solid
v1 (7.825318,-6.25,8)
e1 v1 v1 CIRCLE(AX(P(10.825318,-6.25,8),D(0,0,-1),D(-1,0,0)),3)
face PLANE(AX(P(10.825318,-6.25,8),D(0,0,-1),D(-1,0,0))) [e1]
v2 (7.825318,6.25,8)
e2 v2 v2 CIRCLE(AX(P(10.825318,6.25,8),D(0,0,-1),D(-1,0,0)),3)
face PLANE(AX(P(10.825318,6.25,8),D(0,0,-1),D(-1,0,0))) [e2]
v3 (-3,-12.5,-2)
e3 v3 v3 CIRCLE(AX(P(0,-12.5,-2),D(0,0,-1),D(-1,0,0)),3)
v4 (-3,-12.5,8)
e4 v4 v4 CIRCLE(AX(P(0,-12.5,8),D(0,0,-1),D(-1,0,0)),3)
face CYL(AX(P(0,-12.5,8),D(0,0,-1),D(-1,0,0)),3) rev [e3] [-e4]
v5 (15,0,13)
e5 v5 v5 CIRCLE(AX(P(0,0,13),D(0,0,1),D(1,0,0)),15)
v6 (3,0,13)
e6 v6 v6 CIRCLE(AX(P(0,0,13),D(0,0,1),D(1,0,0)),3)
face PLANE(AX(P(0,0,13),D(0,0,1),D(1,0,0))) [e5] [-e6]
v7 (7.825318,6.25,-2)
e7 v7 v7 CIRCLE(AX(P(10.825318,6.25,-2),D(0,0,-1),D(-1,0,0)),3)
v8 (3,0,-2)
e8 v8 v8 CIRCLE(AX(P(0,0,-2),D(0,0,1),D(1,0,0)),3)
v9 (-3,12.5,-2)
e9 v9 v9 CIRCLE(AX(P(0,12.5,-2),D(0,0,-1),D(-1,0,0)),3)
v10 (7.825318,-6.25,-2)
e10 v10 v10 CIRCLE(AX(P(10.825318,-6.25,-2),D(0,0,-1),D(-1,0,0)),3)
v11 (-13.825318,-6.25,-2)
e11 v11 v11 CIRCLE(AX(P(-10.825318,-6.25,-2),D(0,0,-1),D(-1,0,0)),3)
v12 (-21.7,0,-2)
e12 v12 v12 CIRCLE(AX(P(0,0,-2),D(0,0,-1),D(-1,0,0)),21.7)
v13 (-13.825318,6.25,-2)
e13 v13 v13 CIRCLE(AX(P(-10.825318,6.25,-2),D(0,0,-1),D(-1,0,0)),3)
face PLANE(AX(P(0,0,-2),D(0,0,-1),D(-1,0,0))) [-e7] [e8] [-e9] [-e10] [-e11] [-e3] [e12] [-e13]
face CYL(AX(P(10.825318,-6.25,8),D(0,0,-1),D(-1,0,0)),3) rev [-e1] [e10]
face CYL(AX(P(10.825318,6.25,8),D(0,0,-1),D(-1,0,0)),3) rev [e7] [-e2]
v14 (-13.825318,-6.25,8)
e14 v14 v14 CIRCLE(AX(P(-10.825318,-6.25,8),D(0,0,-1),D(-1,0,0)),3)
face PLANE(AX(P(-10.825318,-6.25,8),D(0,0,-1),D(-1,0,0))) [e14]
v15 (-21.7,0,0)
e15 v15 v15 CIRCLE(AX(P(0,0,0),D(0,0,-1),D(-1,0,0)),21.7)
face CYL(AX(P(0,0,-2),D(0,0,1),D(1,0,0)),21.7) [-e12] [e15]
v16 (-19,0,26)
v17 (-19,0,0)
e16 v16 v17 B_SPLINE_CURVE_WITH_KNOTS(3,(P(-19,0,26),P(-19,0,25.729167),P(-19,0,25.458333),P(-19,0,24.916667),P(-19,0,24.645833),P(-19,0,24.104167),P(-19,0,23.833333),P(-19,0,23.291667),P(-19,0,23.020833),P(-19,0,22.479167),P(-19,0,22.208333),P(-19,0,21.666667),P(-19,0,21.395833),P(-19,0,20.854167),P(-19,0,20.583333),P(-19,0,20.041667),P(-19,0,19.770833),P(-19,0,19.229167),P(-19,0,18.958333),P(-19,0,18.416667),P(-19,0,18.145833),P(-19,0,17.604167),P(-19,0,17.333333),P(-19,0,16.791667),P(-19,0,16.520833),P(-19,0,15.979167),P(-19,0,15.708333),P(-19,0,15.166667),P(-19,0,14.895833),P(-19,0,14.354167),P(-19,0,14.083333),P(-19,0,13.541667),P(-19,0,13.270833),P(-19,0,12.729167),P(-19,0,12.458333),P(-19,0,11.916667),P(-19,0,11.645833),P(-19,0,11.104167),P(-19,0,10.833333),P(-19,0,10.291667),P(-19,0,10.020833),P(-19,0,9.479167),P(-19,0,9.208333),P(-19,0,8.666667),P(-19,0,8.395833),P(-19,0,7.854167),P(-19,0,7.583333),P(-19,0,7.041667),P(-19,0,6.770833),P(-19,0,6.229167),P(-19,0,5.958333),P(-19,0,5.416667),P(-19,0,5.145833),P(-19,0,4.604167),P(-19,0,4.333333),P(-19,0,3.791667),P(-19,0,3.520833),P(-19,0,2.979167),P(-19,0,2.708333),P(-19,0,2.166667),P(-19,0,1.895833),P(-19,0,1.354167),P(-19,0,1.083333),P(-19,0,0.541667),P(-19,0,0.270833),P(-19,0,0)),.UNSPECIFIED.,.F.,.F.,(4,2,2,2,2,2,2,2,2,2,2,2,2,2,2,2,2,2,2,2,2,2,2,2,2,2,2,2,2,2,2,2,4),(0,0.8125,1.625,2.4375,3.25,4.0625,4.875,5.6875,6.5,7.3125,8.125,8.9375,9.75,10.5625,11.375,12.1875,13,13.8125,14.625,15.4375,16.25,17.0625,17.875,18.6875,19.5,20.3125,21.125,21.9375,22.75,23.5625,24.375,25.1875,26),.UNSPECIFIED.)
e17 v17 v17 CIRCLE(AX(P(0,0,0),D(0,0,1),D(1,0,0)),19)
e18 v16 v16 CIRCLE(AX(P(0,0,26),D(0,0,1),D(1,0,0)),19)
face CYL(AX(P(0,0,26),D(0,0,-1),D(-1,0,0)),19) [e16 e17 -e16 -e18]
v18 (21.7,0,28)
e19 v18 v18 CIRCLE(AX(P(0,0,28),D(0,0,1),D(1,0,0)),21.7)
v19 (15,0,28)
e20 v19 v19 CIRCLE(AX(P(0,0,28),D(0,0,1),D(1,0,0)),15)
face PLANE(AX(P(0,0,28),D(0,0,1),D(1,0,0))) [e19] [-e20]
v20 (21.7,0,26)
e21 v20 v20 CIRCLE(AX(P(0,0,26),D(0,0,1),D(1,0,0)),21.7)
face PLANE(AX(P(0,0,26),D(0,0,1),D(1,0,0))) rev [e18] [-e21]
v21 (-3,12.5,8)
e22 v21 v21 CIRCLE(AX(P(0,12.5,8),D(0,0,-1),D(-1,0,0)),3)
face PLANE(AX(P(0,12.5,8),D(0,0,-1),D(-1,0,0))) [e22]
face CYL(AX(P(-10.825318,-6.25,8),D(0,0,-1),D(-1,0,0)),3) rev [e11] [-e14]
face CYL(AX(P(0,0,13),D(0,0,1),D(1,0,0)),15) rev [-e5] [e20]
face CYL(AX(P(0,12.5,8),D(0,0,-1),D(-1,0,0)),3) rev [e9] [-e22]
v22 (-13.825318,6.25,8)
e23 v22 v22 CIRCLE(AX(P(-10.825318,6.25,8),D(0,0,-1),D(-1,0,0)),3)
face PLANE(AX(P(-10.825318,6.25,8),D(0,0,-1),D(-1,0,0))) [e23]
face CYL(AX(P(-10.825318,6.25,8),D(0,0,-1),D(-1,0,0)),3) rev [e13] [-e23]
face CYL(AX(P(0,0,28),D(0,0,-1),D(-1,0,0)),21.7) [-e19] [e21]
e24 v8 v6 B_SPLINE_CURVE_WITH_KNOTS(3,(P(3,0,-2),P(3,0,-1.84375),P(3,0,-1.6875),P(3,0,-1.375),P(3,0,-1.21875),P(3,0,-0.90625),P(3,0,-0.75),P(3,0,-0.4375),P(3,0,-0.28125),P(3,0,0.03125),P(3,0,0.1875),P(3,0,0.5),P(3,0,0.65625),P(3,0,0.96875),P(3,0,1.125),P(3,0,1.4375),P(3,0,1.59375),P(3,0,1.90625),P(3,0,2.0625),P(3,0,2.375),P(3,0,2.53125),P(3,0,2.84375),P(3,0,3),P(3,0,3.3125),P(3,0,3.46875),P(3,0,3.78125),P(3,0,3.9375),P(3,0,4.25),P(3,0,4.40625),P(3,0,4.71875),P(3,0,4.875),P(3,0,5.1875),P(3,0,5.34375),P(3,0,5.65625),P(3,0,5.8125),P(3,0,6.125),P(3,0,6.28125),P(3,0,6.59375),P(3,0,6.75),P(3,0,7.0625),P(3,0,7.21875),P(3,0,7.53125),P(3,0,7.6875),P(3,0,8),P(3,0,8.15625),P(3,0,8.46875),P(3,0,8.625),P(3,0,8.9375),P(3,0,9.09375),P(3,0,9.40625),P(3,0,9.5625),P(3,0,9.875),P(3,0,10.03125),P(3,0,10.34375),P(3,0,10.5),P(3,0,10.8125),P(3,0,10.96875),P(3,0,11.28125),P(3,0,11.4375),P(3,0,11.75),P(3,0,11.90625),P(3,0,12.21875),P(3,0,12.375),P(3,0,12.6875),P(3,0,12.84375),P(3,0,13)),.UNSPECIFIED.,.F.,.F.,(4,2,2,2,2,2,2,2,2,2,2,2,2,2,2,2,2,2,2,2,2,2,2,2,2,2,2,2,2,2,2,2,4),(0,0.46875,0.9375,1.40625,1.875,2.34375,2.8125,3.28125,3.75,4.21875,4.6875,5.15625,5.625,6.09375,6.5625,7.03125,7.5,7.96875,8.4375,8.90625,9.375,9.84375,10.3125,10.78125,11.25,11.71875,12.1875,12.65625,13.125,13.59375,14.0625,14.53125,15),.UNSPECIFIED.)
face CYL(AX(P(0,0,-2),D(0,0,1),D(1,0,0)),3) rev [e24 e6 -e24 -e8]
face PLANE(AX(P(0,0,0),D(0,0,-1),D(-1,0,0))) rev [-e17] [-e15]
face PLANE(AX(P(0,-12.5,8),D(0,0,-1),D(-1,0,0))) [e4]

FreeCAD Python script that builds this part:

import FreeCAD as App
import Part
import Sketcher
from FreeCAD import Vector

doc = App.newDocument("Part")
body = doc.addObject("PartDesign::Body", "Body")

# Sketch on XY plane
sketch1 = doc.addObject("Sketcher::SketchObject", "Sketch")
body.addObject(sketch1)
sketch1.AttachmentSupport = (doc.XY_Plane, [""])
sketch1.MapMode = "FlatFace"
sketch1.addGeometry(Part.Circle(Vector(0, 0, 0), Vector(0, 0, 1), 19), False)
sketch1.addConstraint([
    Sketcher.Constraint("Coincident", 0, 3, -1, 1),
    Sketcher.Constraint("Diameter", 0, 38.0),
])
pad1 = doc.addObject("PartDesign::Pad", "Pad")
body.addObject(pad1)
pad1.Profile = sketch1
pad1.Length = 26

# Sketch on XY plane
sketch2 = doc.addObject("Sketcher::SketchObject", "Sketch001")
body.addObject(sketch2)
sketch2.AttachmentSupport = (doc.XY_Plane, [""])
sketch2.MapMode = "FlatFace"
sketch2.AttachmentOffset = App.Placement(Vector(0, 0, 26), App.Rotation())
sketch2.addGeometry(Part.Circle(Vector(0, 0, 0), Vector(0, 0, 1), 22), False)
sketch2.addConstraint([
    Sketcher.Constraint("Coincident", 0, 3, -1, 1),
    Sketcher.Constraint("Diameter", 0, 43.4),
])
pad2 = doc.addObject("PartDesign::Pad", "Pad001")
body.addObject(pad2)
pad2.Profile = sketch2
pad2.Length = 2

# Sketch on XY plane
sketch3 = doc.addObject("Sketcher::SketchObject", "Sketch002")
body.addObject(sketch3)
sketch3.AttachmentSupport = (doc.XY_Plane, [""])
sketch3.MapMode = "FlatFace"
sketch3.AttachmentOffset = App.Placement(Vector(0, 0, -2), App.Rotation())
sketch3.addGeometry(Part.Circle(Vector(0, 0, 0), Vector(0, 0, 1), 22), False)
sketch3.addConstraint([
    Sketcher.Constraint("Coincident", 0, 3, -1, 1),
    Sketcher.Constraint("Diameter", 0, 43.4),
])
pad3 = doc.addObject("PartDesign::Pad", "Pad002")
body.addObject(pad3)
pad3.Profile = sketch3
pad3.Length = 2

# Sketch on XY plane
sketch4 = doc.addObject("Sketcher::SketchObject", "Sketch003")
body.addObject(sketch4)
sketch4.AttachmentSupport = (doc.XY_Plane, [""])
sketch4.MapMode = "FlatFace"
sketch4.AttachmentOffset = App.Placement(Vector(0, 0, 28), App.Rotation())
sketch4.addGeometry(Part.Circle(Vector(0, 0, 0), Vector(0, 0, 1), 15), False)
sketch4.addConstraint([
    Sketcher.Constraint("Coincident", 0, 3, -1, 1),
    Sketcher.Constraint("Diameter", 0, 30.0),
])
pocket1 = doc.addObject("PartDesign::Pocket", "Pocket")
body.addObject(pocket1)
pocket1.Profile = sketch4
pocket1.Length = 15

# Sketch on XY plane
sketch5 = doc.addObject("Sketcher::SketchObject", "Sketch004")
body.addObject(sketch5)
sketch5.AttachmentSupport = (doc.XY_Plane, [""])
sketch5.MapMode = "FlatFace"
sketch5.AttachmentOffset = App.Placement(Vector(0, 0, 13), App.Rotation())
sketch5.addGeometry(Part.Circle(Vector(0, 0, 0), Vector(0, 0, 1), 3), False)
sketch5.addConstraint([
    Sketcher.Constraint("Coincident", 0, 3, -1, 1),
    Sketcher.Constraint("Diameter", 0, 6.0),
])
pocket2 = doc.addObject("PartDesign::Pocket", "Pocket001")
body.addObject(pocket2)
pocket2.Profile = sketch5
pocket2.Type = "ThroughAll"

# Sketch on XY plane
sketch6 = doc.addObject("Sketcher::SketchObject", "Sketch005")
body.addObject(sketch6)
sketch6.AttachmentSupport = (doc.XY_Plane, [""])
sketch6.MapMode = "FlatFace"
sketch6.AttachmentOffset = App.Placement(Vector(0, 0, -2), App.Rotation())
sketch6.addGeometry([
    Part.Circle(Vector(0, 12.5, 0), Vector(0, 0, 1), 3),  # 0
    Part.Circle(Vector(-10.8, 6.2, 0), Vector(0, 0, 1), 3),  # 1
    Part.Circle(Vector(-10.8, -6.2, 0), Vector(0, 0, 1), 3),  # 2
    Part.Circle(Vector(0, -12.5, 0), Vector(0, 0, 1), 3),  # 3
    Part.Circle(Vector(10.8, -6.2, 0), Vector(0, 0, 1), 3),  # 4
    Part.Circle(Vector(10.8, 6.2, 0), Vector(0, 0, 1), 3),  # 5
], False)
sketch6.addConstraint([
    Sketcher.Constraint("Equal", 0, 1),
    Sketcher.Constraint("Equal", 1, 2),
    Sketcher.Constraint("Equal", 2, 3),
    Sketcher.Constraint("Equal", 3, 4),
    Sketcher.Constraint("Equal", 4, 5),
    Sketcher.Constraint("Symmetric", 0, 3, 3, 3, -1, 1),
    Sketcher.Constraint("Symmetric", 1, 3, 4, 3, -1, 1),
    Sketcher.Constraint("Symmetric", 2, 3, 5, 3, -1, 1),
    Sketcher.Constraint("Symmetric", 2, 3, 4, 3, -2),
    Sketcher.Constraint("PointOnObject", 0, 3, -2),
    Sketcher.Constraint("Diameter", 0, 6.0),
    Sketcher.Constraint("DistanceY", 3, 3, 0, 3, 25.0),
    Sketcher.Constraint("DistanceY", 2, 3, 1, 3, 12.5),
    Sketcher.Constraint("DistanceX", 1, 3, -1, 1, 10.825318),
])
pocket3 = doc.addObject("PartDesign::Pocket", "Pocket002")
body.addObject(pocket3)
pocket3.Profile = sketch6
pocket3.Length = 10
pocket3.Reversed = True

doc.recompute()
